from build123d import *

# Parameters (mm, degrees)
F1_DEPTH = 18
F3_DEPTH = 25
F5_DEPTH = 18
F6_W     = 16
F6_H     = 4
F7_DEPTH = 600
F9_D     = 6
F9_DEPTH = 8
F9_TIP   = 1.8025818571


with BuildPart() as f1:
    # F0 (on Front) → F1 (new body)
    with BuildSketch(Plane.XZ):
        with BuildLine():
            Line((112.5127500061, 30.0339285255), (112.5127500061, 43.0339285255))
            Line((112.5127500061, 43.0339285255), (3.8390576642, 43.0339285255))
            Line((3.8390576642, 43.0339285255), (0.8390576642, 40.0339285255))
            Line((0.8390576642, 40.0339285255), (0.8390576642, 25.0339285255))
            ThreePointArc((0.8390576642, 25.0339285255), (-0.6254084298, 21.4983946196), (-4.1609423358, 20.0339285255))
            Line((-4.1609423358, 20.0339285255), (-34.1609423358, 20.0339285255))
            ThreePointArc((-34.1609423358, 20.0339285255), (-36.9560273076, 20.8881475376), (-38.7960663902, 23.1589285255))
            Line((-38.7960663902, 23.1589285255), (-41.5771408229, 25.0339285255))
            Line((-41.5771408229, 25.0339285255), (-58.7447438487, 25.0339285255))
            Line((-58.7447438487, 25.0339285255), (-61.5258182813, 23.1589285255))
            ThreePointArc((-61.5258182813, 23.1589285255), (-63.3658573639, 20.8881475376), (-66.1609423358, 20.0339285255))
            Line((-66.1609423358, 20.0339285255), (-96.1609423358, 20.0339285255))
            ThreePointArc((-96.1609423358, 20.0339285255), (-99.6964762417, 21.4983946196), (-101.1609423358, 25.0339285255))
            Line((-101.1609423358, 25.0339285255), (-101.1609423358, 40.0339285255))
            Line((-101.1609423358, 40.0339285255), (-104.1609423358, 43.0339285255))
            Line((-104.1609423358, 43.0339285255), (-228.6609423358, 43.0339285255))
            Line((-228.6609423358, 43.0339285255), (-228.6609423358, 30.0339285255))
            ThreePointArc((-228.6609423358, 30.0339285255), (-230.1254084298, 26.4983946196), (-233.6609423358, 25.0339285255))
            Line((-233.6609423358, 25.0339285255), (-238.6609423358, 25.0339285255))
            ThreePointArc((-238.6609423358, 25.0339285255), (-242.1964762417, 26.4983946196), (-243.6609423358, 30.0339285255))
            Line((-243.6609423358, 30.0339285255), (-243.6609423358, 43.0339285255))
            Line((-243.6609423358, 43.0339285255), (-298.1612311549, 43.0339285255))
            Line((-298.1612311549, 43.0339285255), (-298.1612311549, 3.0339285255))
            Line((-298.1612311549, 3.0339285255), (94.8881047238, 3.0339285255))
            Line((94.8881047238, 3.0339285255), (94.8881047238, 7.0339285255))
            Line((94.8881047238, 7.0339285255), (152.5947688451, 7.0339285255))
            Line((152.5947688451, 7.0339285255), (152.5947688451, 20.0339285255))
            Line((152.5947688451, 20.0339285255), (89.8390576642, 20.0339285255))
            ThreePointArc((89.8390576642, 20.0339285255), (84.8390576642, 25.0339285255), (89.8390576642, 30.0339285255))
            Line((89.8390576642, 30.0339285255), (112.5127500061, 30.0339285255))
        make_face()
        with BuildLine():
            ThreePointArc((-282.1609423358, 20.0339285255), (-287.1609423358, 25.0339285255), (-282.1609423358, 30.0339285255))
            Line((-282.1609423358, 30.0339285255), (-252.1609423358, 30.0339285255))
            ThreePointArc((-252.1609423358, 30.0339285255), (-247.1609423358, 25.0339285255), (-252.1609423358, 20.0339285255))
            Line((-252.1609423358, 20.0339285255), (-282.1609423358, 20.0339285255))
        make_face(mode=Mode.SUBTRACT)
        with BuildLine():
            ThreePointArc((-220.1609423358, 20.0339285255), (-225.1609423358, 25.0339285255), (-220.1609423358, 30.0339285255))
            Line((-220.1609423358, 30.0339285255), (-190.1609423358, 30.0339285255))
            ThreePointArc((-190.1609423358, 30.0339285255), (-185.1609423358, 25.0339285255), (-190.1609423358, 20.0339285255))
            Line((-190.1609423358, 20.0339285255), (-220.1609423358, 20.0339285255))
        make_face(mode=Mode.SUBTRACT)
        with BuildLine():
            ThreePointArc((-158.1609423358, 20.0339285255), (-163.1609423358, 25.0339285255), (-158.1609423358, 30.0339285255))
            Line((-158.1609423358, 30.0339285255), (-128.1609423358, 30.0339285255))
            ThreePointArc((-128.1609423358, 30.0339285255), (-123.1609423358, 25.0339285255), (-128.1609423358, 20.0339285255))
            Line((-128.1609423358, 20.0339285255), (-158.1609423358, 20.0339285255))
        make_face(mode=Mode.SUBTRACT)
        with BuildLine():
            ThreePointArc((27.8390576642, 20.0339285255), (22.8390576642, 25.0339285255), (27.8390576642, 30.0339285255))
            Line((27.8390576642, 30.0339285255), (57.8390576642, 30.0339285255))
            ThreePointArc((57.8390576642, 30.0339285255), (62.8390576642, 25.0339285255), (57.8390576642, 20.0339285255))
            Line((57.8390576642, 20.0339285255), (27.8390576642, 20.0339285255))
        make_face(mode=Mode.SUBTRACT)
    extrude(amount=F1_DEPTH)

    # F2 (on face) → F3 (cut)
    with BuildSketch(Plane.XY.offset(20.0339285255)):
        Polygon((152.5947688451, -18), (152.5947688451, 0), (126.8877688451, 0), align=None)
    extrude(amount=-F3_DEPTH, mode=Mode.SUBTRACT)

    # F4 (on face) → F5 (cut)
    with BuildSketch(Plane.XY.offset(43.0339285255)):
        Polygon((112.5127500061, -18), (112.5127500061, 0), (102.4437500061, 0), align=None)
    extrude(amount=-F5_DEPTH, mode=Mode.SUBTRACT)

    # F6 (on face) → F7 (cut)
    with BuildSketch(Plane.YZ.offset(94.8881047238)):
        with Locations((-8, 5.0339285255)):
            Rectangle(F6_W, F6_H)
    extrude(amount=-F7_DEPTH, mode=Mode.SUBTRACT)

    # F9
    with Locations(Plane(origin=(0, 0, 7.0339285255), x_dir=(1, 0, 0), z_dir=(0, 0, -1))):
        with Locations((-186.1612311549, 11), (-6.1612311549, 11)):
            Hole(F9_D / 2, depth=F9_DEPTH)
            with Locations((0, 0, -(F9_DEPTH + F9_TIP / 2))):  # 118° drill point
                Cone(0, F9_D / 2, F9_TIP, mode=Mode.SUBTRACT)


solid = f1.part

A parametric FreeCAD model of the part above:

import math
import FreeCAD as App
import Part
import Sketcher

V = App.Vector


def add_polygon(sketch, points):
    """Adds a closed chain of lines whose ends are joined by coincident constraints."""
    first, n = sketch.GeometryCount, len(points)
    for a, b in zip(points, points[1:] + points[:1]):
        sketch.addGeometry(Part.LineSegment(App.Vector(*a, 0), App.Vector(*b, 0)), False)
    for i in range(n):
        sketch.addConstraint(Sketcher.Constraint("Coincident", first + i, 2, first + (i + 1) % n, 1))

doc = App.newDocument("Part")
body = doc.addObject("PartDesign::Body", "Body")

sketch1 = body.newObject("Sketcher::SketchObject", "Sketch")
sketch1.AttachmentSupport = (doc.getObject("XZ_Plane"), [""])
sketch1.MapMode = "FlatFace"
sketch1.addGeometry([
    Part.LineSegment(V(112.51275, 30.033929, 0), V(112.51275, 43.033929, 0)),
    Part.LineSegment(V(112.51275, 43.033929, 0), V(3.839058, 43.033929, 0)),
    Part.LineSegment(V(3.839058, 43.033929, 0), V(0.839058, 40.033929, 0)),
    Part.LineSegment(V(0.839058, 40.033929, 0), V(0.839058, 25.033929, 0)),
    Part.ArcOfCircle(Part.Circle(V(-4.160942, 25.033929, 0), V(0, 0, 1), 5), math.radians(-90), math.radians(0)),
    Part.LineSegment(V(-4.160942, 20.033929, 0), V(-34.160942, 20.033929, 0)),
    Part.ArcOfCircle(Part.Circle(V(-34.160942, 25.033929, 0), V(0, 0, 1), 5), math.radians(-157.975687), math.radians(-90)),
    Part.LineSegment(V(-38.796066, 23.158929, 0), V(-41.577141, 25.033929, 0)),
    Part.LineSegment(V(-41.577141, 25.033929, 0), V(-58.744744, 25.033929, 0)),
    Part.LineSegment(V(-58.744744, 25.033929, 0), V(-61.525818, 23.158929, 0)),
    Part.ArcOfCircle(Part.Circle(V(-66.160942, 25.033929, 0), V(0, 0, 1), 5), math.radians(-90), math.radians(-22.024313)),
    Part.LineSegment(V(-66.160942, 20.033929, 0), V(-96.160942, 20.033929, 0)),
    Part.ArcOfCircle(Part.Circle(V(-96.160942, 25.033929, 0), V(0, 0, 1), 5), math.radians(-180), math.radians(-90)),
    Part.LineSegment(V(-101.160942, 25.033929, 0), V(-101.160942, 40.033929, 0)),
    Part.LineSegment(V(-101.160942, 40.033929, 0), V(-104.160942, 43.033929, 0)),
    Part.LineSegment(V(-104.160942, 43.033929, 0), V(-228.660942, 43.033929, 0)),
    Part.LineSegment(V(-228.660942, 43.033929, 0), V(-228.660942, 30.033929, 0)),
    Part.ArcOfCircle(Part.Circle(V(-233.660942, 30.033929, 0), V(0, 0, 1), 5), math.radians(-90), math.radians(0)),
    Part.LineSegment(V(-233.660942, 25.033929, 0), V(-238.660942, 25.033929, 0)),
    Part.ArcOfCircle(Part.Circle(V(-238.660942, 30.033929, 0), V(0, 0, 1), 5), math.radians(-180), math.radians(-90)),
    Part.LineSegment(V(-243.660942, 30.033929, 0), V(-243.660942, 43.033929, 0)),
    Part.LineSegment(V(-243.660942, 43.033929, 0), V(-298.161231, 43.033929, 0)),
    Part.LineSegment(V(-298.161231, 43.033929, 0), V(-298.161231, 3.033929, 0)),
    Part.LineSegment(V(-298.161231, 3.033929, 0), V(94.888105, 3.033929, 0)),
    Part.LineSegment(V(94.888105, 3.033929, 0), V(94.888105, 7.033929, 0)),
    Part.LineSegment(V(94.888105, 7.033929, 0), V(152.594769, 7.033929, 0)),
    Part.LineSegment(V(152.594769, 7.033929, 0), V(152.594769, 20.033929, 0)),
    Part.LineSegment(V(152.594769, 20.033929, 0), V(89.839058, 20.033929, 0)),
    Part.ArcOfCircle(Part.Circle(V(89.839058, 25.033929, 0), V(0, 0, 1), 5), math.radians(90), math.radians(270)),
    Part.LineSegment(V(89.839058, 30.033929, 0), V(112.51275, 30.033929, 0)),
    Part.LineSegment(V(-252.160942, 20.033929, 0), V(-282.160942, 20.033929, 0)),
    Part.ArcOfCircle(Part.Circle(V(-282.160942, 25.033929, 0), V(0, 0, 1), 5), math.radians(90), math.radians(270)),
    Part.LineSegment(V(-282.160942, 30.033929, 0), V(-252.160942, 30.033929, 0)),
    Part.ArcOfCircle(Part.Circle(V(-252.160942, 25.033929, 0), V(0, 0, 1), 5), math.radians(-90), math.radians(90)),
    Part.LineSegment(V(-190.160942, 20.033929, 0), V(-220.160942, 20.033929, 0)),
    Part.ArcOfCircle(Part.Circle(V(-220.160942, 25.033929, 0), V(0, 0, 1), 5), math.radians(90), math.radians(270)),
    Part.LineSegment(V(-220.160942, 30.033929, 0), V(-190.160942, 30.033929, 0)),
    Part.ArcOfCircle(Part.Circle(V(-190.160942, 25.033929, 0), V(0, 0, 1), 5), math.radians(-90), math.radians(90)),
    Part.LineSegment(V(-128.160942, 20.033929, 0), V(-158.160942, 20.033929, 0)),
    Part.ArcOfCircle(Part.Circle(V(-158.160942, 25.033929, 0), V(0, 0, 1), 5), math.radians(90), math.radians(270)),
    Part.LineSegment(V(-158.160942, 30.033929, 0), V(-128.160942, 30.033929, 0)),
    Part.ArcOfCircle(Part.Circle(V(-128.160942, 25.033929, 0), V(0, 0, 1), 5), math.radians(-90), math.radians(90)),
    Part.LineSegment(V(57.839058, 20.033929, 0), V(27.839058, 20.033929, 0)),
    Part.ArcOfCircle(Part.Circle(V(27.839058, 25.033929, 0), V(0, 0, 1), 5), math.radians(90), math.radians(270)),
    Part.LineSegment(V(27.839058, 30.033929, 0), V(57.839058, 30.033929, 0)),
    Part.ArcOfCircle(Part.Circle(V(57.839058, 25.033929, 0), V(0, 0, 1), 5), math.radians(-90), math.radians(90)),
], False)
sketch1.addConstraint([
    Sketcher.Constraint("Coincident", 0, 2, 1, 1),
    Sketcher.Constraint("Coincident", 1, 2, 2, 1),
    Sketcher.Constraint("Coincident", 2, 2, 3, 1),
    Sketcher.Constraint("Tangent", 3, 2, 4, 2),
    Sketcher.Constraint("Tangent", 4, 1, 5, 1),
    Sketcher.Constraint("Tangent", 5, 2, 6, 2),
    Sketcher.Constraint("Coincident", 6, 1, 7, 1),
    Sketcher.Constraint("Coincident", 7, 2, 8, 1),
    Sketcher.Constraint("Coincident", 8, 2, 9, 1),
    Sketcher.Constraint("Coincident", 9, 2, 10, 2),
    Sketcher.Constraint("Tangent", 10, 1, 11, 1),
    Sketcher.Constraint("Tangent", 11, 2, 12, 2),
    Sketcher.Constraint("Tangent", 12, 1, 13, 1),
    Sketcher.Constraint("Coincident", 13, 2, 14, 1),
    Sketcher.Constraint("Coincident", 14, 2, 15, 1),
    Sketcher.Constraint("Coincident", 15, 2, 16, 1),
    Sketcher.Constraint("Tangent", 16, 2, 17, 2),
    Sketcher.Constraint("Tangent", 17, 1, 18, 1),
    Sketcher.Constraint("Tangent", 18, 2, 19, 2),
    Sketcher.Constraint("Tangent", 19, 1, 20, 1),
    Sketcher.Constraint("Coincident", 20, 2, 21, 1),
    Sketcher.Constraint("Coincident", 21, 2, 22, 1),
    Sketcher.Constraint("Coincident", 22, 2, 23, 1),
    Sketcher.Constraint("Coincident", 23, 2, 24, 1),
    Sketcher.Constraint("Coincident", 24, 2, 25, 1),
    Sketcher.Constraint("Coincident", 25, 2, 26, 1),
    Sketcher.Constraint("Coincident", 26, 2, 27, 1),
    Sketcher.Constraint("Tangent", 27, 2, 28, 2),
    Sketcher.Constraint("Tangent", 28, 1, 29, 1),
    Sketcher.Constraint("Coincident", 29, 2, 0, 1),
    Sketcher.Constraint("Tangent", 30, 2, 31, 2),
    Sketcher.Constraint("Tangent", 31, 1, 32, 1),
    Sketcher.Constraint("Tangent", 32, 2, 33, 2),
    Sketcher.Constraint("Tangent", 33, 1, 30, 1),
    Sketcher.Constraint("Tangent", 34, 2, 35, 2),
    Sketcher.Constraint("Tangent", 35, 1, 36, 1),
    Sketcher.Constraint("Tangent", 36, 2, 37, 2),
    Sketcher.Constraint("Tangent", 37, 1, 34, 1),
    Sketcher.Constraint("Tangent", 38, 2, 39, 2),
    Sketcher.Constraint("Tangent", 39, 1, 40, 1),
    Sketcher.Constraint("Tangent", 40, 2, 41, 2),
    Sketcher.Constraint("Tangent", 41, 1, 38, 1),
    Sketcher.Constraint("Tangent", 42, 2, 43, 2),
    Sketcher.Constraint("Tangent", 43, 1, 44, 1),
    Sketcher.Constraint("Tangent", 44, 2, 45, 2),
    Sketcher.Constraint("Tangent", 45, 1, 42, 1),
    Sketcher.Constraint("Vertical", 0),
    Sketcher.Constraint("Horizontal", 1),
    Sketcher.Constraint("Vertical", 3),
    Sketcher.Constraint("Horizontal", 5),
    Sketcher.Constraint("Horizontal", 8),
    Sketcher.Constraint("Horizontal", 11),
    Sketcher.Constraint("Vertical", 13),
    Sketcher.Constraint("Horizontal", 15),
    Sketcher.Constraint("Vertical", 16),
    Sketcher.Constraint("Horizontal", 18),
    Sketcher.Constraint("Vertical", 20),
    Sketcher.Constraint("Horizontal", 21),
    Sketcher.Constraint("Vertical", 22),
    Sketcher.Constraint("Horizontal", 23),
    Sketcher.Constraint("Vertical", 24),
    Sketcher.Constraint("Horizontal", 25),
    Sketcher.Constraint("Vertical", 26),
    Sketcher.Constraint("Horizontal", 27),
    Sketcher.Constraint("Horizontal", 29),
    Sketcher.Constraint("Horizontal", 30),
    Sketcher.Constraint("Horizontal", 32),
    Sketcher.Constraint("Horizontal", 34),
    Sketcher.Constraint("Horizontal", 36),
    Sketcher.Constraint("Horizontal", 38),
    Sketcher.Constraint("Horizontal", 40),
    Sketcher.Constraint("Horizontal", 42),
    Sketcher.Constraint("Horizontal", 44),
    Sketcher.Constraint("Equal", 4, 6),
    Sketcher.Constraint("Equal", 6, 10),
    Sketcher.Constraint("Equal", 10, 12),
    Sketcher.Constraint("Equal", 12, 17),
    Sketcher.Constraint("Equal", 17, 19),
    Sketcher.Constraint("Equal", 19, 28),
    Sketcher.Constraint("Equal", 28, 31),
    Sketcher.Constraint("Equal", 33, 35),
    Sketcher.Constraint("Equal", 37, 39),
    Sketcher.Constraint("Equal", 41, 43),
    Sketcher.Constraint("Perpendicular", 2, 14),
    Sketcher.Constraint("Horizontal", 6, 3, 10, 3),
    Sketcher.Constraint("Horizontal", 12, 3, 28, 3),
    Sketcher.Constraint("Horizontal", 28, 3, 31, 3),
    Sketcher.Constraint("Horizontal", 33, 3, 35, 3),
    Sketcher.Constraint("Horizontal", 37, 3, 39, 3),
    Sketcher.Constraint("Horizontal", 41, 3, 43, 3),
    Sketcher.Constraint("Horizontal", 3, 2, 7, 2),
    Sketcher.Constraint("Horizontal", 6, 1, 9, 2),
    Sketcher.Constraint("Horizontal", 2, 2, 13, 2),
    Sketcher.Constraint("Horizontal", 1, 2, 14, 2),
    Sketcher.Constraint("Horizontal", 12, 1, 17, 1),
    Sketcher.Constraint("Horizontal", 15, 2, 20, 2),
    Sketcher.Constraint("Equal", 5, 11),
    Sketcher.Constraint("Equal", 11, 30),
    Sketcher.Constraint("Equal", 32, 34),
    Sketcher.Constraint("Equal", 36, 38),
    Sketcher.Constraint("Equal", 40, 42),
    Sketcher.Constraint("Equal", 20, 26),
    Sketcher.Constraint("Equal", 7, 9),
    Sketcher.Constraint("Equal", 2, 14),
    Sketcher.Constraint("Radius", 4, 5.0),
    Sketcher.Constraint("DistanceX", 5, 2, 5, 1, 30.0),
    Sketcher.Constraint("DistanceX", 18, 2, 18, 1, 5.0),
    Sketcher.Constraint("DistanceY", 0, 1, 0, 2, 13.0),
    Sketcher.Constraint("DistanceY", 3, 2, 3, 1, 15.0),
    Sketcher.Constraint("DistanceY", 22, 2, 22, 1, 40.0),
    Sketcher.Constraint("DistanceX", 15, 2, 15, 1, 124.5),
    Sketcher.Constraint("Distance", 7, 3.354102),
    Sketcher.Constraint("DistanceX", 21, 2, 21, 1, 54.500289),
    Sketcher.Constraint("DistanceX", 27, 2, 27, 1, 62.755711),
    Sketcher.Constraint("DistanceX", 1, 2, 1, 1, 108.673692),
    Sketcher.Constraint("DistanceX", 8, 2, 8, 1, 17.167603),
    Sketcher.Constraint("DistanceX", 23, 1, 23, 2, 393.049336),
    Sketcher.Constraint("DistanceX", 25, 1, 25, 2, 57.706664),
    Sketcher.Constraint("DistanceX", 29, 1, 29, 2, 22.673692),
    Sketcher.Constraint("DistanceY", -1, 1, 4, 3, 25.033929),
    Sketcher.Constraint("DistanceX", -1, 1, 0, 2, 112.51275),
    Sketcher.Constraint("DistanceX", 31, 3, -1, 1, 282.160942),
    Sketcher.Constraint("DistanceX", 35, 3, -1, 1, 220.160942),
    Sketcher.Constraint("DistanceX", 39, 3, -1, 1, 158.160942),
    Sketcher.Constraint("DistanceX", -1, 1, 43, 3, 27.839058),
])
pad1 = body.newObject("PartDesign::Pad", "Pad")
pad1.Profile = sketch1
pad1.Length = 18

sketch2 = body.newObject("Sketcher::SketchObject", "Sketch001")
sketch2.AttachmentSupport = (doc.getObject("XY_Plane"), [""])
sketch2.MapMode = "FlatFace"
sketch2.AttachmentOffset = App.Placement(V(0, 0, 20.033929), App.Rotation())
add_polygon(sketch2, [(152.594769, -18), (152.594769, 0), (126.887769, 0)])
sketch2.addConstraint([
    Sketcher.Constraint("Vertical", 0),
    Sketcher.Constraint("Horizontal", 1),
    Sketcher.Constraint("PointOnObject", 0, 2, -1),
    Sketcher.Constraint("DistanceY", 0, 1, 0, 2, 18.0),
    Sketcher.Constraint("DistanceX", 1, 2, 1, 1, 25.707),
    Sketcher.Constraint("DistanceX", -1, 1, 0, 2, 152.594769),
])
pocket1 = body.newObject("PartDesign::Pocket", "Pocket")
pocket1.Profile = sketch2
pocket1.Length = 25

sketch3 = body.newObject("Sketcher::SketchObject", "Sketch002")
sketch3.AttachmentSupport = (doc.getObject("XY_Plane"), [""])
sketch3.MapMode = "FlatFace"
sketch3.AttachmentOffset = App.Placement(V(0, 0, 43.033929), App.Rotation())
add_polygon(sketch3, [(112.51275, -18), (112.51275, 0), (102.44375, 0)])
sketch3.addConstraint([
    Sketcher.Constraint("Vertical", 0),
    Sketcher.Constraint("Horizontal", 1),
    Sketcher.Constraint("PointOnObject", 0, 2, -1),
    Sketcher.Constraint("DistanceY", 0, 1, 0, 2, 18.0),
    Sketcher.Constraint("DistanceX", 1, 2, 1, 1, 10.069),
    Sketcher.Constraint("DistanceX", -1, 1, 0, 2, 112.51275),
])
pocket2 = body.newObject("PartDesign::Pocket", "Pocket001")
pocket2.Profile = sketch3
pocket2.Length = 18

sketch4 = body.newObject("Sketcher::SketchObject", "Sketch003")
sketch4.AttachmentSupport = (doc.getObject("YZ_Plane"), [""])
sketch4.MapMode = "FlatFace"
sketch4.AttachmentOffset = App.Placement(V(0, 0, 94.888105), App.Rotation())
add_polygon(sketch4, [(-16, 7.033929), (-16, 3.033929), (0, 3.033929), (0, 7.033929)])
sketch4.addConstraint([
    Sketcher.Constraint("Vertical", 0),
    Sketcher.Constraint("Horizontal", 1),
    Sketcher.Constraint("Vertical", 2),
    Sketcher.Constraint("Horizontal", 3),
    Sketcher.Constraint("PointOnObject", 1, 2, -2),
    Sketcher.Constraint("DistanceX", 1, 1, 1, 2, 16.0),
    Sketcher.Constraint("DistanceY", 0, 2, 0, 1, 4.0),
    Sketcher.Constraint("DistanceY", -1, 1, 0, 2, 3.033929),
])
pocket3 = body.newObject("PartDesign::Pocket", "Pocket002")
pocket3.Profile = sketch4
pocket3.Length = 600

sketch5 = body.newObject("Sketcher::SketchObject", "Sketch004")
sketch5.AttachmentSupport = (doc.getObject("XY_Plane"), [""])
sketch5.MapMode = "FlatFace"
sketch5.AttachmentOffset = App.Placement(V(0, 0, 7.033929), App.Rotation())
sketch5.addGeometry([
    Part.Circle(V(-186.161231, -11, 0), V(0, 0, 1), 3),
    Part.Circle(V(-6.161231, -11, 0), V(0, 0, 1), 3),
], False)
sketch5.addConstraint([
    Sketcher.Constraint("Equal", 0, 1),
    Sketcher.Constraint("Horizontal", 0, 3, 1, 3),
    Sketcher.Constraint("Diameter", 0, 6.0),
    Sketcher.Constraint("DistanceY", 0, 3, -1, 1, 11.0),
    Sketcher.Constraint("DistanceX", 0, 3, 1, 3, 180.0),
    Sketcher.Constraint("DistanceX", 0, 3, -1, 1, 186.161231),
])
doc.recompute()
hole = body.newObject("PartDesign::Hole", "Hole")
hole.Profile = sketch5
hole.ThreadType = "None"
hole.Diameter = 6
hole.DepthType = "Dimension"
hole.Depth = 8
hole.DrillPoint = "Angled"
hole.DrillPointAngle = 118
hole.Reversed = True

doc.recompute()
